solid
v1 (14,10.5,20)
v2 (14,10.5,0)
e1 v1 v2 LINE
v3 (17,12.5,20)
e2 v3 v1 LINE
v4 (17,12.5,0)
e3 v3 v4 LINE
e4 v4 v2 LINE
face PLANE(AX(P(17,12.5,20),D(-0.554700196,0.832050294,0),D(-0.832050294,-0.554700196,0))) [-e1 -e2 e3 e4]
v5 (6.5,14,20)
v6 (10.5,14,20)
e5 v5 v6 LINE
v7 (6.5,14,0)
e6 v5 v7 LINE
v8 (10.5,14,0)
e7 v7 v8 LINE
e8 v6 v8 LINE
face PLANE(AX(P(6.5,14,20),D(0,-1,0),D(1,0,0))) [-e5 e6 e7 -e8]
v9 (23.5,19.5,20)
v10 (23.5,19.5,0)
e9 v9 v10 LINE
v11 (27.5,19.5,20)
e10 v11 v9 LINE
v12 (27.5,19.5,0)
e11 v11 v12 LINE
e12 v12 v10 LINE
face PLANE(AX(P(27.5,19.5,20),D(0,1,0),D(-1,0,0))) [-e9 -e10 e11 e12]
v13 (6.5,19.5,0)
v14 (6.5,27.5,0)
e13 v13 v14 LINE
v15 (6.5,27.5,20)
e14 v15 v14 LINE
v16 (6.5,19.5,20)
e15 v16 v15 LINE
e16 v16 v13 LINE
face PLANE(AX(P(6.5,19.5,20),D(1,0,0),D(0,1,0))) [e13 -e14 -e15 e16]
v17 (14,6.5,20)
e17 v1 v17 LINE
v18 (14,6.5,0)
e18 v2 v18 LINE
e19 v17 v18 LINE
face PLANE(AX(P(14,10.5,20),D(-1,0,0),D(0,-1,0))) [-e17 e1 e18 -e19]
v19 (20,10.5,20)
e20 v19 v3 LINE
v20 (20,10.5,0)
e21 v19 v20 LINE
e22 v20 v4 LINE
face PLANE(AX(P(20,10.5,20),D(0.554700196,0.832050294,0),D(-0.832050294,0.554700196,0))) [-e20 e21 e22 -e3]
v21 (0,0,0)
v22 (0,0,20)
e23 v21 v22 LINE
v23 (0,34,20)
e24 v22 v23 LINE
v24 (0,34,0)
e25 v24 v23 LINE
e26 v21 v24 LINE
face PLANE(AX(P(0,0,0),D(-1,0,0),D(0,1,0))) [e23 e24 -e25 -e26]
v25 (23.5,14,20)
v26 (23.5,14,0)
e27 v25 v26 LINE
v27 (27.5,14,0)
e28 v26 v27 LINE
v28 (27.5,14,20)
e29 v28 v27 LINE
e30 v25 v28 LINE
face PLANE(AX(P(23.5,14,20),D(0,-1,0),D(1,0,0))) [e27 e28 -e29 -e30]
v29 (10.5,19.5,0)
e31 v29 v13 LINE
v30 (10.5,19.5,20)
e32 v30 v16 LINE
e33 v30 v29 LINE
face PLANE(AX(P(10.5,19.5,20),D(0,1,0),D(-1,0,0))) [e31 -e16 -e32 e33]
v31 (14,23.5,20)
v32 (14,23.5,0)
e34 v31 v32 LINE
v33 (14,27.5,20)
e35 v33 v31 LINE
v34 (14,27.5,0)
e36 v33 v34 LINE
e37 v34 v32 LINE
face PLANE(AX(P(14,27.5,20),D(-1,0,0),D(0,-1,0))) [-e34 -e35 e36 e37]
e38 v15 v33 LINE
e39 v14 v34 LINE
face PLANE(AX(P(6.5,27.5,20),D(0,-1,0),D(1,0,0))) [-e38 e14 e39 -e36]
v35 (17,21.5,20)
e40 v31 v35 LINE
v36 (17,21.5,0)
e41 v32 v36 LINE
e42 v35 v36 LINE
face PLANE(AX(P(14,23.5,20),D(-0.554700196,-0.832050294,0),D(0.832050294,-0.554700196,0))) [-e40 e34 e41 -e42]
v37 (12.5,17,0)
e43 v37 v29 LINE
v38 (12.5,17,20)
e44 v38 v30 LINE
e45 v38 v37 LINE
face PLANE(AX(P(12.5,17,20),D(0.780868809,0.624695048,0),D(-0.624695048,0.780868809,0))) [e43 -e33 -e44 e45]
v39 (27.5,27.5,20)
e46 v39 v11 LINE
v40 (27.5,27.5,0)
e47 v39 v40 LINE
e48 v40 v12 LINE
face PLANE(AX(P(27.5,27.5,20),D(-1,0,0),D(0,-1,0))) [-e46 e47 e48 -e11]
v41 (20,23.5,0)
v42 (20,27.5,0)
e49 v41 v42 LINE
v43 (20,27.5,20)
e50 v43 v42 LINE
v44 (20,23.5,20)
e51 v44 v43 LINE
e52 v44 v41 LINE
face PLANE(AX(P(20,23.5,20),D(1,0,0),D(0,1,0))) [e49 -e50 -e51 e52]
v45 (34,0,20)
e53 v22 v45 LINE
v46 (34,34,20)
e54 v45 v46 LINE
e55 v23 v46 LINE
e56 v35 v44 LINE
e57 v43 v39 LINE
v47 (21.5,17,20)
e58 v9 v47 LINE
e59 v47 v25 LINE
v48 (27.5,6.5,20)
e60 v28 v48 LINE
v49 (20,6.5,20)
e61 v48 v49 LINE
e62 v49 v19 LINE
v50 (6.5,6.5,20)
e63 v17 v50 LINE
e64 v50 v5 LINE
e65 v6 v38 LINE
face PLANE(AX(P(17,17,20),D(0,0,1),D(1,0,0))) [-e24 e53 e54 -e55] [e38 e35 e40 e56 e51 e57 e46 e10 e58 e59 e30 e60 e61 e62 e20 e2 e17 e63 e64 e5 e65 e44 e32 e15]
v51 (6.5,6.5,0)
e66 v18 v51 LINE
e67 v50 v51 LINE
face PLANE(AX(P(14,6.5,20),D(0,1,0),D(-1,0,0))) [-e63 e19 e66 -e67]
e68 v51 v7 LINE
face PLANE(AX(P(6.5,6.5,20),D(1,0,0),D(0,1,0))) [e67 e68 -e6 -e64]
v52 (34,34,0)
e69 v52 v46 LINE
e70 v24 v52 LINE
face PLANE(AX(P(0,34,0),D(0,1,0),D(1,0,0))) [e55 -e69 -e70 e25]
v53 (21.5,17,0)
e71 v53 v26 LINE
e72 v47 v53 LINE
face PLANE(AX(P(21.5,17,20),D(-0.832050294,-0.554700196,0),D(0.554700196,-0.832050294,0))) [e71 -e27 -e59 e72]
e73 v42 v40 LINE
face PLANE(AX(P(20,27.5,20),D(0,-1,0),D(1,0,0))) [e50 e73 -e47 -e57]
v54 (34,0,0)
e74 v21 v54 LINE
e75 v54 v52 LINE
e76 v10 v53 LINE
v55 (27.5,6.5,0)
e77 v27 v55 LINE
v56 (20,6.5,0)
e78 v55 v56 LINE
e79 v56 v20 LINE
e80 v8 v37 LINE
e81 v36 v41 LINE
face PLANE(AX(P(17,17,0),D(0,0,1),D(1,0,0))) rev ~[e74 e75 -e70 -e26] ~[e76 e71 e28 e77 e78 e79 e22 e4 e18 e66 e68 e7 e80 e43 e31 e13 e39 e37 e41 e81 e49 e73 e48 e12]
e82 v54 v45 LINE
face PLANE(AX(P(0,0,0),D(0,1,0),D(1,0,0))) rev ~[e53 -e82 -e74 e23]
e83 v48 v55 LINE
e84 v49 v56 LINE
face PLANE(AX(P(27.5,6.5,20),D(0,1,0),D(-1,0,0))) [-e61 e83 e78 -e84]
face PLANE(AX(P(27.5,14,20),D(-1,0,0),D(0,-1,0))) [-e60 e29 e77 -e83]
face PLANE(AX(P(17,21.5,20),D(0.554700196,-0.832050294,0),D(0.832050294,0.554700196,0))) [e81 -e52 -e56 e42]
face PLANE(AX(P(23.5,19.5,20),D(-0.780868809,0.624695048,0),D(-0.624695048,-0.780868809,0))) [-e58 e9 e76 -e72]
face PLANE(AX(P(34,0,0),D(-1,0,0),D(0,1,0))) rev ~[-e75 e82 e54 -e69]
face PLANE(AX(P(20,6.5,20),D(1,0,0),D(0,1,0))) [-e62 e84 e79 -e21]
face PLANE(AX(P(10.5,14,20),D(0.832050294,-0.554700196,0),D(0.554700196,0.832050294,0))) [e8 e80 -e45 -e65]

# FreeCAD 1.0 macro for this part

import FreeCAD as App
import Part
import Sketcher

V = App.Vector
Q = App.Units.Quantity


def add_polygon(sketch, points):
    """Adds a closed chain of lines whose ends are joined by coincident constraints."""
    first, n = sketch.GeometryCount, len(points)
    for a, b in zip(points, points[1:] + points[:1]):
        sketch.addGeometry(Part.LineSegment(App.Vector(*a, 0), App.Vector(*b, 0)), False)
    for i in range(n):
        sketch.addConstraint(Sketcher.Constraint("Coincident", first + i, 2, first + (i + 1) % n, 1))

doc = App.newDocument("Part")
body = doc.addObject("PartDesign::Body", "Body")

# Sketch on XY plane
sketch1 = body.newObject("Sketcher::SketchObject", "Sketch")
sketch1.AttachmentSupport = (doc.getObject("XY_Plane"), [""])
sketch1.MapMode = "FlatFace"
add_polygon(sketch1, [(0, 34), (0, 0), (34, 0), (34, 34)])  # lines 0-3
sketch1.addConstraint([
    Sketcher.Constraint("Vertical", 0),
    Sketcher.Constraint("Horizontal", 1),
    Sketcher.Constraint("Vertical", 2),
    Sketcher.Constraint("Horizontal", 3),
    Sketcher.Constraint("Coincident", 0, 2, -1, 1),
    Sketcher.Constraint("Equal", 3, 0),
    Sketcher.Constraint("DistanceX", 1, 1, 1, 2, Q("34 mm")),
])
pad1 = body.newObject("PartDesign::Pad", "Pad")
pad1.Profile = sketch1
pad1.Length = 20

# Sketch on XY plane
sketch2 = body.newObject("Sketcher::SketchObject", "Sketch001")
sketch2.AttachmentSupport = (doc.getObject("XY_Plane"), [""])
sketch2.MapMode = "FlatFace"
sketch2.AttachmentOffset = App.Placement(V(0, 0, 20), App.Rotation())
add_polygon(sketch2, [(14, 27.5), (6.5, 27.5), (6.5, 19.5), (10.5, 19.5), (12.5, 17), (10.5, 14), (6.5, 14), (6.5, 6.5), (14, 6.5), (14, 10.5), (17, 12.5), (20, 10.5), (20, 6.5), (27.5, 6.5), (27.5, 14), (23.5, 14), (21.5, 17), (23.5, 19.5), (27.5, 19.5), (27.5, 27.5), (20, 27.5), (20, 23.5), (17, 21.5), (14, 23.5)])  # lines 0-23
sketch2.addConstraint([
    Sketcher.Constraint("Horizontal", 0),
    Sketcher.Constraint("Vertical", 1),
    Sketcher.Constraint("Horizontal", 2),
    Sketcher.Constraint("Horizontal", 5),
    Sketcher.Constraint("Vertical", 6),
    Sketcher.Constraint("Horizontal", 7),
    Sketcher.Constraint("Vertical", 8),
    Sketcher.Constraint("Vertical", 11),
    Sketcher.Constraint("Horizontal", 12),
    Sketcher.Constraint("Vertical", 13),
    Sketcher.Constraint("Horizontal", 14),
    Sketcher.Constraint("Horizontal", 17),
    Sketcher.Constraint("Vertical", 18),
    Sketcher.Constraint("Horizontal", 19),
    Sketcher.Constraint("Vertical", 20),
    Sketcher.Constraint("Vertical", 23),
    Sketcher.Constraint("Perpendicular", 4, 10),
    Sketcher.Constraint("Perpendicular", 9, 15),
    Sketcher.Constraint("Perpendicular", 15, 21),
    Sketcher.Constraint("Parallel", 10, 22),
    Sketcher.Constraint("Horizontal", 8, 2, 10, 2),
    Sketcher.Constraint("Horizontal", 7, 2, 11, 2),
    Sketcher.Constraint("Horizontal", 5, 2, 13, 2),
    Sketcher.Constraint("Horizontal", 3, 2, 15, 2),
    Sketcher.Constraint("Horizontal", 2, 2, 16, 2),
    Sketcher.Constraint("Horizontal", 0, 2, 18, 2),
    Sketcher.Constraint("Horizontal", 20, 2, 22, 2),
    Sketcher.Constraint("Vertical", 2, 2, 4, 2),
    Sketcher.Constraint("Vertical", 1, 2, 5, 2),
    Sketcher.Constraint("Vertical", 14, 2, 16, 2),
    Sketcher.Constraint("Vertical", 13, 2, 17, 2),
    Sketcher.Constraint("Vertical", 11, 2, 19, 2),
    Sketcher.Constraint("Vertical", 9, 2, 21, 2),
    Sketcher.Constraint("Vertical", 8, 2, 22, 2),
    Sketcher.Constraint("Equal", 7, 12),
    Sketcher.Constraint("Equal", 5, 14),
    Sketcher.Constraint("Equal", 19, 6),
    Sketcher.Constraint("Equal", 17, 8),
    Sketcher.Constraint("Equal", 11, 20),
    Sketcher.Constraint("Equal", 4, 9),
    Sketcher.Constraint("DistanceX", 2, 1, 2, 2, Q("4 mm")),
    Sketcher.Constraint("DistanceY", 1, 2, 1, 1, Q("8 mm")),
    Sketcher.Constraint("DistanceX", 0, 2, 0, 1, Q("7.5 mm")),
    Sketcher.Constraint("DistanceY", -1, 1, 3, 2, Q("17 mm")),
    Sketcher.Constraint("DistanceY", -1, 1, 4, 2, Q("14 mm")),
    Sketcher.Constraint("DistanceX", -1, 1, 7, 2, Q("14 mm")),
    Sketcher.Constraint("DistanceX", 2, 2, 3, 2, Q("2 mm")),
    Sketcher.Constraint("DistanceY", 6, 2, 1, 2, Q("13 mm")),
])
pocket1 = body.newObject("PartDesign::Pocket", "Pocket")
pocket1.Profile = sketch2
pocket1.Length = 20

doc.recompute()
